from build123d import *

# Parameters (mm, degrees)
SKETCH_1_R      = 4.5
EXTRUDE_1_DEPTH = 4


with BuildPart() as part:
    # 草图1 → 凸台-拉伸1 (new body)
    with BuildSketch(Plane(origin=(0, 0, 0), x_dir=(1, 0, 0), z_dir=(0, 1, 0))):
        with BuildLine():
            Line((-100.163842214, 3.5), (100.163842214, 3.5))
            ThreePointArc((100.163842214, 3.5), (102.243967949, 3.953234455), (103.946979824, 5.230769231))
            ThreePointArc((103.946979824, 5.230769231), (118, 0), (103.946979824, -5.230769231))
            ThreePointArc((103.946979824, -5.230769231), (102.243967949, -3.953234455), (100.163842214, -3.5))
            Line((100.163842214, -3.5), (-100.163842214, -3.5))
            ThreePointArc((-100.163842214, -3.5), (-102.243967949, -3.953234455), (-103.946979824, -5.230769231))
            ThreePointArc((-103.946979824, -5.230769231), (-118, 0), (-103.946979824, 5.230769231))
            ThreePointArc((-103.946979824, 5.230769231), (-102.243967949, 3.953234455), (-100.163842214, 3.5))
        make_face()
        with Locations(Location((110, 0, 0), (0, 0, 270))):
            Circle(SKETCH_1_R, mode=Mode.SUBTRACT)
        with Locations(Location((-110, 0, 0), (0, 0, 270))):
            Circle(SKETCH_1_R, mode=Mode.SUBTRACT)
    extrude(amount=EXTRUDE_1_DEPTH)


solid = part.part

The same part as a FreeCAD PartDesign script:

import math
import FreeCAD as App
import Part
import Sketcher
Q = App.Units.Quantity

doc = App.newDocument("Part")
body = doc.addObject("PartDesign::Body", "Body")

sketch1 = doc.addObject("Sketcher::SketchObject", "Sketch")
body.addObject(sketch1)
sketch1.AttachmentSupport = (doc.XZ_Plane, [""])
sketch1.MapMode = "FlatFace"
sketch1.addGeometry(Part.LineSegment(App.Vector(100.163842, -3.5, 0), App.Vector(-100.163842, -3.5, 0)), False)
sketch1.addGeometry(Part.ArcOfCircle(Part.Circle(App.Vector(-100.163842, -8.5, 0), App.Vector(0, 0, 1), 5), math.radians(90), math.radians(139.167783)), False)
sketch1.addGeometry(Part.ArcOfCircle(Part.Circle(App.Vector(-110, 0, 0), App.Vector(0, 0, 1), 8), math.radians(40.832217), math.radians(319.167783)), False)
sketch1.addGeometry(Part.ArcOfCircle(Part.Circle(App.Vector(-100.163842, 8.5, 0), App.Vector(0, 0, 1), 5), math.radians(-139.167783), math.radians(-90)), False)
sketch1.addGeometry(Part.LineSegment(App.Vector(-100.163842, 3.5, 0), App.Vector(100.163842, 3.5, 0)), False)
sketch1.addGeometry(Part.ArcOfCircle(Part.Circle(App.Vector(100.163842, 8.5, 0), App.Vector(0, 0, 1), 5), math.radians(-90), math.radians(-40.832217)), False)
sketch1.addGeometry(Part.ArcOfCircle(Part.Circle(App.Vector(110, 0, 0), App.Vector(0, 0, 1), 8), math.radians(-139.167783), math.radians(139.167783)), False)
sketch1.addGeometry(Part.ArcOfCircle(Part.Circle(App.Vector(100.163842, -8.5, 0), App.Vector(0, 0, 1), 5), math.radians(40.832217), math.radians(90)), False)
sketch1.addGeometry(Part.Circle(App.Vector(110, 0, 0), App.Vector(0, 0, 1), 4.5), False)
sketch1.addGeometry(Part.Circle(App.Vector(-110, 0, 0), App.Vector(0, 0, 1), 4.5), False)
sketch1.addConstraint(Sketcher.Constraint("Tangent", 0, 2, 1, 1))
sketch1.addConstraint(Sketcher.Constraint("Tangent", 1, 2, 2, 2))
sketch1.addConstraint(Sketcher.Constraint("Tangent", 2, 1, 3, 1))
sketch1.addConstraint(Sketcher.Constraint("Tangent", 3, 2, 4, 1))
sketch1.addConstraint(Sketcher.Constraint("Tangent", 4, 2, 5, 1))
sketch1.addConstraint(Sketcher.Constraint("Tangent", 5, 2, 6, 2))
sketch1.addConstraint(Sketcher.Constraint("Tangent", 6, 1, 7, 1))
sketch1.addConstraint(Sketcher.Constraint("Tangent", 7, 2, 0, 1))
sketch1.addConstraint(Sketcher.Constraint("Horizontal", 0))
sketch1.addConstraint(Sketcher.Constraint("Horizontal", 4))
sketch1.addConstraint(Sketcher.Constraint("Coincident", 8, 3, 6, 3))
sketch1.addConstraint(Sketcher.Constraint("Coincident", 9, 3, 2, 3))
sketch1.addConstraint(Sketcher.Constraint("Equal", 1, 3))
sketch1.addConstraint(Sketcher.Constraint("Equal", 3, 5))
sketch1.addConstraint(Sketcher.Constraint("Equal", 2, 6))
sketch1.addConstraint(Sketcher.Constraint("Equal", 5, 7))
sketch1.addConstraint(Sketcher.Constraint("Equal", 8, 9))
sketch1.addConstraint(Sketcher.Constraint("Symmetric", 1, 3, 5, 3, -1, 1))
sketch1.addConstraint(Sketcher.Constraint("Symmetric", 2, 3, 6, 3, -2))
sketch1.addConstraint(Sketcher.Constraint("Diameter", 8, Q("9 mm")))
sketch1.addConstraint(Sketcher.Constraint("Radius", 1, Q("5 mm")))
sketch1.addConstraint(Sketcher.Constraint("Radius", 2, Q("8 mm")))
sketch1.addConstraint(Sketcher.Constraint("DistanceX", 2, 3, -1, 1, Q("110 mm")))
sketch1.addConstraint(Sketcher.Constraint("DistanceY", 1, 3, 3, 3, Q("17 mm")))
pad1 = doc.addObject("PartDesign::Pad", "Pad")
body.addObject(pad1)
pad1.Profile = sketch1
pad1.Length = 4
pad1.Reversed = True

doc.recompute()
